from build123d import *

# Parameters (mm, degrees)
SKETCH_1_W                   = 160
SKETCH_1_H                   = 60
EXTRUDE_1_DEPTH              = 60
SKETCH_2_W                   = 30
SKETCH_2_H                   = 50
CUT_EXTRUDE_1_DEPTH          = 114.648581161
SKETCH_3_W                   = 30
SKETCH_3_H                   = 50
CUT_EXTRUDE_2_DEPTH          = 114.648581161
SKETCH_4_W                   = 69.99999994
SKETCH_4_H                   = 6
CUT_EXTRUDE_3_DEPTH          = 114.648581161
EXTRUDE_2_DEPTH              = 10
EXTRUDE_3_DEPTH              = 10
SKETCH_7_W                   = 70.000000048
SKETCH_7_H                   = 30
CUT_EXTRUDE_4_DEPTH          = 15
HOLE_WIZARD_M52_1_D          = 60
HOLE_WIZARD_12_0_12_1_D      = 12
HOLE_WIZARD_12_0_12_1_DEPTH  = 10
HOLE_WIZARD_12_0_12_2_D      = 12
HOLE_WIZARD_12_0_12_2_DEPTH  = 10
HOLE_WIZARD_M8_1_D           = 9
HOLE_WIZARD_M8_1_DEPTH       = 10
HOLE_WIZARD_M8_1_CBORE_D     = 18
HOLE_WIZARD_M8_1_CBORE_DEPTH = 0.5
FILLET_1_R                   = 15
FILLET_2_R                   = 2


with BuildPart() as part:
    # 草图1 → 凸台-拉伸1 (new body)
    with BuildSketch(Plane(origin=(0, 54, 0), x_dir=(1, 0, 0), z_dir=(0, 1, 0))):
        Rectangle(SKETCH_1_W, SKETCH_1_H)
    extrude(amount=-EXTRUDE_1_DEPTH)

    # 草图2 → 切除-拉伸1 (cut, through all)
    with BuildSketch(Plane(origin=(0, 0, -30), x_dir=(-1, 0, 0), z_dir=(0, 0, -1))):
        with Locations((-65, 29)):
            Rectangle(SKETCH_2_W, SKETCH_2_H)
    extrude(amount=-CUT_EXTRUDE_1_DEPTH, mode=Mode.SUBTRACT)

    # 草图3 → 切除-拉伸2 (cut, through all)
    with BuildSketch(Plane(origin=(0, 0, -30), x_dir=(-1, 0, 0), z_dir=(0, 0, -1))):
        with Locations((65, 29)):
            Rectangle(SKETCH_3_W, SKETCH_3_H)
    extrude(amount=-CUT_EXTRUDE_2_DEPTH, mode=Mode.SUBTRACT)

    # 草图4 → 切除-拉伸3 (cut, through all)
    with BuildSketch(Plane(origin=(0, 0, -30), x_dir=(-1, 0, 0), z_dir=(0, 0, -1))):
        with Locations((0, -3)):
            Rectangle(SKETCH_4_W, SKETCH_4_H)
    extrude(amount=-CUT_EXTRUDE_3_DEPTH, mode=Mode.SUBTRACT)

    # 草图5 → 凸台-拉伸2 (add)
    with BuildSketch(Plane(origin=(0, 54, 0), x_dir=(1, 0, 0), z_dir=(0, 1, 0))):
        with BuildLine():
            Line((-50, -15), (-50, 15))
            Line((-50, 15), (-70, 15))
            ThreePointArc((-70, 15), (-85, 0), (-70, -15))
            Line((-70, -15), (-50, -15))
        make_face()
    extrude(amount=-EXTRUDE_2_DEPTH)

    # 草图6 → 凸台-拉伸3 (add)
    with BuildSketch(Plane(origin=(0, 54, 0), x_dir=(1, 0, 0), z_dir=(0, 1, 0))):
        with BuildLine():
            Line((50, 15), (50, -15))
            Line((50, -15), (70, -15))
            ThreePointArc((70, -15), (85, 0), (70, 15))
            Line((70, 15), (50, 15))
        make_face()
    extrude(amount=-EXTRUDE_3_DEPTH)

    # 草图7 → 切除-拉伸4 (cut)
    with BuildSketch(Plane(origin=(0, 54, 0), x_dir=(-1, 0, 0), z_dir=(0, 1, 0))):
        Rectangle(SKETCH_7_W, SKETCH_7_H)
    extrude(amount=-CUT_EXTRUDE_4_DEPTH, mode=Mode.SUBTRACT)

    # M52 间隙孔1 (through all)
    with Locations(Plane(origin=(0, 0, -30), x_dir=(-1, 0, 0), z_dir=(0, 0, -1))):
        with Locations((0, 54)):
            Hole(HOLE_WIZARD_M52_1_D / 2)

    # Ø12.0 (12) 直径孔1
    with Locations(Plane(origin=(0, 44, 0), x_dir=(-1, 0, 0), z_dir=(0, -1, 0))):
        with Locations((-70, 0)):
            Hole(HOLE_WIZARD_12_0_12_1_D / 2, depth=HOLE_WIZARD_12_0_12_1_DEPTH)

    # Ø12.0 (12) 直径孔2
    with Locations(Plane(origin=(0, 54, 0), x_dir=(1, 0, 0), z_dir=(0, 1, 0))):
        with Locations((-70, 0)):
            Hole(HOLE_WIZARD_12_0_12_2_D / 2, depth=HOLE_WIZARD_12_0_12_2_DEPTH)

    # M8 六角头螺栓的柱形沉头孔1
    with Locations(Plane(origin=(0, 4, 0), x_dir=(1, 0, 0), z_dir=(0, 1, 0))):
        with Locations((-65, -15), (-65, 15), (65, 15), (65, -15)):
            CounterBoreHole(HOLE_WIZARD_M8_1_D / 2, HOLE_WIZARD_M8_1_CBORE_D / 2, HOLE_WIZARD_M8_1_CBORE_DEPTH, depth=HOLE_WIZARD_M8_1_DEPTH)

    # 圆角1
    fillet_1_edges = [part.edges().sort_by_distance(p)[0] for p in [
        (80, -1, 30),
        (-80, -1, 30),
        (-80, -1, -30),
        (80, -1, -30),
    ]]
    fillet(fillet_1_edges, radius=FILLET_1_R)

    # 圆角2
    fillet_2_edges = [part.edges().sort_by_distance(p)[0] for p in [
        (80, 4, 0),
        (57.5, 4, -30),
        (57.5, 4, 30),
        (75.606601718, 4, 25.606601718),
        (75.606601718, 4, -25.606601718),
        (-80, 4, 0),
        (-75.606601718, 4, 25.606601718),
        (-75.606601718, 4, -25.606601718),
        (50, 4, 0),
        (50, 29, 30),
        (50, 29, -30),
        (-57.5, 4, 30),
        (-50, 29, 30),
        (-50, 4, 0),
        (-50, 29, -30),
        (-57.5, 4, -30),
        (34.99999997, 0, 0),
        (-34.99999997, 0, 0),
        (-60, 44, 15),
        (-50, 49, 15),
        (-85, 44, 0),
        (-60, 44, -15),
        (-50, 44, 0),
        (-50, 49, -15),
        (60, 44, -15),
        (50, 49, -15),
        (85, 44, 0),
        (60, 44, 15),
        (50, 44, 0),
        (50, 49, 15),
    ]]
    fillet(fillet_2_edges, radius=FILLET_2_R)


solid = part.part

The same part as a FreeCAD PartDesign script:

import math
import FreeCAD as App
import Part
import Sketcher
Q = App.Units.Quantity


def edges_at(feature, points):
    """Names of the edges that pass closest to the given points."""
    edges = feature.Shape.Edges
    near = lambda p: min(range(len(edges)), key=lambda i: edges[i].distToShape(Part.Vertex(*p))[0])
    return sorted({f"Edge{near(p) + 1}" for p in points})

doc = App.newDocument("Part")
params = doc.addObject("Spreadsheet::Sheet", "Params")
for row, (alias, value) in enumerate([
    ("sketch1_width", "160 mm"),
    ("sketch1_height", "60 mm"),
    ("pad1_length", "60 mm"),
    ("sketch2_width", "30 mm"),
    ("sketch2_height", "50 mm"),
    ("sketch3_width", "30 mm"),
    ("sketch3_height", "50 mm"),
    ("sketch4_width", "70 mm"),
    ("sketch4_height", "6 mm"),
    ("sketch5_radius", "15 mm"),
    ("sketch5_width", "20 mm"),
    ("pad2_length", "10 mm"),
    ("sketch6_radius", "15 mm"),
    ("sketch6_width", "20 mm"),
    ("pad3_length", "10 mm"),
    ("sketch7_width", "70 mm"),
    ("sketch7_height", "30 mm"),
    ("pocket4_length", "15 mm"),
    ("sketch8_diameter", "60 mm"),
    ("hole_diameter", "60 mm"),
    ("sketch9_diameter", "12 mm"),
    ("hole2_diameter", "12 mm"),
    ("hole2_depth", "10 mm"),
    ("sketch10_diameter", "12 mm"),
    ("hole3_diameter", "12 mm"),
    ("hole3_depth", "10 mm"),
    ("sketch11_diameter", "9 mm"),
    ("hole4_diameter", "9 mm"),
    ("hole4_depth", "10 mm"),
    ("hole4_cbore_diameter", "18 mm"),
    ("hole4_cbore_depth", "0.5 mm"),
    ("fillet_radius", "15 mm"),
    ("fillet2_radius", "2 mm"),
], start=1):
    params.set(f"A{row}", alias)
    params.set(f"B{row}", "=" + value)
    params.setAlias(f"B{row}", alias)

body = doc.addObject("PartDesign::Body", "Body")

sketch1 = body.newObject("Sketcher::SketchObject", "Sketch")
sketch1.AttachmentSupport = (doc.getObject("XZ_Plane"), [""])
sketch1.MapMode = "FlatFace"
sketch1.AttachmentOffset = App.Placement(App.Vector(0, 0, -54), App.Rotation())
sketch1.addGeometry(Part.LineSegment(App.Vector(-80, -30, 0), App.Vector(-80, 30, 0)), False)
sketch1.addGeometry(Part.LineSegment(App.Vector(-80, 30, 0), App.Vector(80, 30, 0)), False)
sketch1.addGeometry(Part.LineSegment(App.Vector(80, 30, 0), App.Vector(80, -30, 0)), False)
sketch1.addGeometry(Part.LineSegment(App.Vector(80, -30, 0), App.Vector(-80, -30, 0)), False)
sketch1.addConstraint(Sketcher.Constraint("Coincident", 0, 2, 1, 1))
sketch1.addConstraint(Sketcher.Constraint("Coincident", 1, 2, 2, 1))
sketch1.addConstraint(Sketcher.Constraint("Coincident", 2, 2, 3, 1))
sketch1.addConstraint(Sketcher.Constraint("Coincident", 3, 2, 0, 1))
sketch1.addConstraint(Sketcher.Constraint("Vertical", 0))
sketch1.addConstraint(Sketcher.Constraint("Horizontal", 1))
sketch1.addConstraint(Sketcher.Constraint("Vertical", 2))
sketch1.addConstraint(Sketcher.Constraint("Horizontal", 3))
sketch1.addConstraint(Sketcher.Constraint("Symmetric", 0, 2, 2, 2, -1, 1))
sketch1.addConstraint(Sketcher.Constraint("DistanceX", 1, 1, 1, 2, Q("160 mm")))
sketch1.addConstraint(Sketcher.Constraint("DistanceY", 0, 1, 0, 2, Q("60 mm")))
sketch1.setExpression("Constraints[9]", "Params.sketch1_width")
sketch1.setExpression("Constraints[10]", "Params.sketch1_height")
pad1 = body.newObject("PartDesign::Pad", "Pad")
pad1.Profile = sketch1
pad1.setExpression("Length", "Params.pad1_length")

sketch2 = body.newObject("Sketcher::SketchObject", "Sketch001")
sketch2.AttachmentSupport = (doc.getObject("XY_Plane"), [""])
sketch2.MapMode = "FlatFace"
sketch2.AttachmentOffset = App.Placement(App.Vector(0, 0, -30), App.Rotation())
sketch2.addGeometry(Part.LineSegment(App.Vector(80, 54, 0), App.Vector(80, 4, 0)), False)
sketch2.addGeometry(Part.LineSegment(App.Vector(80, 4, 0), App.Vector(50, 4, 0)), False)
sketch2.addGeometry(Part.LineSegment(App.Vector(50, 4, 0), App.Vector(50, 54, 0)), False)
sketch2.addGeometry(Part.LineSegment(App.Vector(50, 54, 0), App.Vector(80, 54, 0)), False)
sketch2.addConstraint(Sketcher.Constraint("Coincident", 0, 2, 1, 1))
sketch2.addConstraint(Sketcher.Constraint("Coincident", 1, 2, 2, 1))
sketch2.addConstraint(Sketcher.Constraint("Coincident", 2, 2, 3, 1))
sketch2.addConstraint(Sketcher.Constraint("Coincident", 3, 2, 0, 1))
sketch2.addConstraint(Sketcher.Constraint("Vertical", 0))
sketch2.addConstraint(Sketcher.Constraint("Horizontal", 1))
sketch2.addConstraint(Sketcher.Constraint("Vertical", 2))
sketch2.addConstraint(Sketcher.Constraint("Horizontal", 3))
sketch2.addConstraint(Sketcher.Constraint("DistanceX", 1, 2, 1, 1, Q("30 mm")))
sketch2.addConstraint(Sketcher.Constraint("DistanceY", 0, 2, 0, 1, Q("50 mm")))
sketch2.addConstraint(Sketcher.Constraint("DistanceX", -1, 1, 0, 2, Q("80 mm")))
sketch2.addConstraint(Sketcher.Constraint("DistanceY", -1, 1, 0, 2, Q("4 mm")))
sketch2.setExpression("Constraints[8]", "Params.sketch2_width")
sketch2.setExpression("Constraints[9]", "Params.sketch2_height")
pocket1 = body.newObject("PartDesign::Pocket", "Pocket")
pocket1.Profile = sketch2
pocket1.Type = "ThroughAll"
pocket1.Reversed = True

sketch3 = body.newObject("Sketcher::SketchObject", "Sketch002")
sketch3.AttachmentSupport = (doc.getObject("XY_Plane"), [""])
sketch3.MapMode = "FlatFace"
sketch3.AttachmentOffset = App.Placement(App.Vector(0, 0, -30), App.Rotation())
sketch3.addGeometry(Part.LineSegment(App.Vector(-50, 54, 0), App.Vector(-50, 4, 0)), False)
sketch3.addGeometry(Part.LineSegment(App.Vector(-50, 4, 0), App.Vector(-80, 4, 0)), False)
sketch3.addGeometry(Part.LineSegment(App.Vector(-80, 4, 0), App.Vector(-80, 54, 0)), False)
sketch3.addGeometry(Part.LineSegment(App.Vector(-80, 54, 0), App.Vector(-50, 54, 0)), False)
sketch3.addConstraint(Sketcher.Constraint("Coincident", 0, 2, 1, 1))
sketch3.addConstraint(Sketcher.Constraint("Coincident", 1, 2, 2, 1))
sketch3.addConstraint(Sketcher.Constraint("Coincident", 2, 2, 3, 1))
sketch3.addConstraint(Sketcher.Constraint("Coincident", 3, 2, 0, 1))
sketch3.addConstraint(Sketcher.Constraint("Vertical", 0))
sketch3.addConstraint(Sketcher.Constraint("Horizontal", 1))
sketch3.addConstraint(Sketcher.Constraint("Vertical", 2))
sketch3.addConstraint(Sketcher.Constraint("Horizontal", 3))
sketch3.addConstraint(Sketcher.Constraint("DistanceX", 1, 2, 1, 1, Q("30 mm")))
sketch3.addConstraint(Sketcher.Constraint("DistanceY", 0, 2, 0, 1, Q("50 mm")))
sketch3.addConstraint(Sketcher.Constraint("DistanceX", 0, 2, -1, 1, Q("50 mm")))
sketch3.addConstraint(Sketcher.Constraint("DistanceY", -1, 1, 0, 2, Q("4 mm")))
sketch3.setExpression("Constraints[8]", "Params.sketch3_width")
sketch3.setExpression("Constraints[9]", "Params.sketch3_height")
pocket2 = body.newObject("PartDesign::Pocket", "Pocket001")
pocket2.Profile = sketch3
pocket2.Type = "ThroughAll"
pocket2.Reversed = True

sketch4 = body.newObject("Sketcher::SketchObject", "Sketch003")
sketch4.AttachmentSupport = (doc.getObject("XY_Plane"), [""])
sketch4.MapMode = "FlatFace"
sketch4.AttachmentOffset = App.Placement(App.Vector(0, 0, -30), App.Rotation())
sketch4.addGeometry(Part.LineSegment(App.Vector(35, 0, 0), App.Vector(35, -6, 0)), False)
sketch4.addGeometry(Part.LineSegment(App.Vector(35, -6, 0), App.Vector(-35, -6, 0)), False)
sketch4.addGeometry(Part.LineSegment(App.Vector(-35, -6, 0), App.Vector(-35, 0, 0)), False)
sketch4.addGeometry(Part.LineSegment(App.Vector(-35, 0, 0), App.Vector(35, 0, 0)), False)
sketch4.addConstraint(Sketcher.Constraint("Coincident", 0, 2, 1, 1))
sketch4.addConstraint(Sketcher.Constraint("Coincident", 1, 2, 2, 1))
sketch4.addConstraint(Sketcher.Constraint("Coincident", 2, 2, 3, 1))
sketch4.addConstraint(Sketcher.Constraint("Coincident", 3, 2, 0, 1))
sketch4.addConstraint(Sketcher.Constraint("Vertical", 0))
sketch4.addConstraint(Sketcher.Constraint("Horizontal", 1))
sketch4.addConstraint(Sketcher.Constraint("Vertical", 2))
sketch4.addConstraint(Sketcher.Constraint("Horizontal", 3))
sketch4.addConstraint(Sketcher.Constraint("Symmetric", 2, 2, 3, 2, -1, 1))
sketch4.addConstraint(Sketcher.Constraint("DistanceX", 1, 2, 1, 1, Q("70 mm")))
sketch4.addConstraint(Sketcher.Constraint("DistanceY", 0, 2, 0, 1, Q("6 mm")))
sketch4.setExpression("Constraints[9]", "Params.sketch4_width")
sketch4.setExpression("Constraints[10]", "Params.sketch4_height")
pocket3 = body.newObject("PartDesign::Pocket", "Pocket002")
pocket3.Profile = sketch4
pocket3.Type = "ThroughAll"
pocket3.Reversed = True

sketch5 = body.newObject("Sketcher::SketchObject", "Sketch004")
sketch5.AttachmentSupport = (doc.getObject("XZ_Plane"), [""])
sketch5.MapMode = "FlatFace"
sketch5.AttachmentOffset = App.Placement(App.Vector(0, 0, -54), App.Rotation())
sketch5.addGeometry(Part.LineSegment(App.Vector(-50, 15, 0), App.Vector(-50, -15, 0)), False)
sketch5.addGeometry(Part.LineSegment(App.Vector(-50, -15, 0), App.Vector(-70, -15, 0)), False)
sketch5.addGeometry(Part.ArcOfCircle(Part.Circle(App.Vector(-70, 0, 0), App.Vector(0, 0, 1), 15), math.radians(90), math.radians(270)), False)
sketch5.addGeometry(Part.LineSegment(App.Vector(-70, 15, 0), App.Vector(-50, 15, 0)), False)
sketch5.addConstraint(Sketcher.Constraint("Coincident", 0, 2, 1, 1))
sketch5.addConstraint(Sketcher.Constraint("Tangent", 1, 2, 2, 2))
sketch5.addConstraint(Sketcher.Constraint("Tangent", 2, 1, 3, 1))
sketch5.addConstraint(Sketcher.Constraint("Coincident", 3, 2, 0, 1))
sketch5.addConstraint(Sketcher.Constraint("Vertical", 0))
sketch5.addConstraint(Sketcher.Constraint("Horizontal", 1))
sketch5.addConstraint(Sketcher.Constraint("Horizontal", 3))
sketch5.addConstraint(Sketcher.Constraint("PointOnObject", 2, 3, -1))
sketch5.addConstraint(Sketcher.Constraint("Radius", 2, Q("15 mm")))
sketch5.addConstraint(Sketcher.Constraint("DistanceX", 1, 2, 1, 1, Q("20 mm")))
sketch5.addConstraint(Sketcher.Constraint("DistanceX", 2, 3, -1, 1, Q("70 mm")))
sketch5.setExpression("Constraints[8]", "Params.sketch5_radius")
sketch5.setExpression("Constraints[9]", "Params.sketch5_width")
pad2 = body.newObject("PartDesign::Pad", "Pad001")
pad2.Profile = sketch5
pad2.setExpression("Length", "Params.pad2_length")

sketch6 = body.newObject("Sketcher::SketchObject", "Sketch005")
sketch6.AttachmentSupport = (doc.getObject("XZ_Plane"), [""])
sketch6.MapMode = "FlatFace"
sketch6.AttachmentOffset = App.Placement(App.Vector(0, 0, -54), App.Rotation())
sketch6.addGeometry(Part.LineSegment(App.Vector(50, -15, 0), App.Vector(50, 15, 0)), False)
sketch6.addGeometry(Part.LineSegment(App.Vector(50, 15, 0), App.Vector(70, 15, 0)), False)
sketch6.addGeometry(Part.ArcOfCircle(Part.Circle(App.Vector(70, 0, 0), App.Vector(0, 0, 1), 15), math.radians(-90), math.radians(90)), False)
sketch6.addGeometry(Part.LineSegment(App.Vector(70, -15, 0), App.Vector(50, -15, 0)), False)
sketch6.addConstraint(Sketcher.Constraint("Coincident", 0, 2, 1, 1))
sketch6.addConstraint(Sketcher.Constraint("Tangent", 1, 2, 2, 2))
sketch6.addConstraint(Sketcher.Constraint("Tangent", 2, 1, 3, 1))
sketch6.addConstraint(Sketcher.Constraint("Coincident", 3, 2, 0, 1))
sketch6.addConstraint(Sketcher.Constraint("Vertical", 0))
sketch6.addConstraint(Sketcher.Constraint("Horizontal", 1))
sketch6.addConstraint(Sketcher.Constraint("Horizontal", 3))
sketch6.addConstraint(Sketcher.Constraint("PointOnObject", 2, 3, -1))
sketch6.addConstraint(Sketcher.Constraint("Radius", 2, Q("15 mm")))
sketch6.addConstraint(Sketcher.Constraint("DistanceX", 1, 1, 1, 2, Q("20 mm")))
sketch6.addConstraint(Sketcher.Constraint("DistanceX", -1, 1, 2, 3, Q("70 mm")))
sketch6.setExpression("Constraints[8]", "Params.sketch6_radius")
sketch6.setExpression("Constraints[9]", "Params.sketch6_width")
pad3 = body.newObject("PartDesign::Pad", "Pad002")
pad3.Profile = sketch6
pad3.setExpression("Length", "Params.pad3_length")

sketch7 = body.newObject("Sketcher::SketchObject", "Sketch006")
sketch7.AttachmentSupport = (doc.getObject("XZ_Plane"), [""])
sketch7.MapMode = "FlatFace"
sketch7.AttachmentOffset = App.Placement(App.Vector(0, 0, -54), App.Rotation())
sketch7.addGeometry(Part.LineSegment(App.Vector(35, 15, 0), App.Vector(35, -15, 0)), False)
sketch7.addGeometry(Part.LineSegment(App.Vector(35, -15, 0), App.Vector(-35, -15, 0)), False)
sketch7.addGeometry(Part.LineSegment(App.Vector(-35, -15, 0), App.Vector(-35, 15, 0)), False)
sketch7.addGeometry(Part.LineSegment(App.Vector(-35, 15, 0), App.Vector(35, 15, 0)), False)
sketch7.addConstraint(Sketcher.Constraint("Coincident", 0, 2, 1, 1))
sketch7.addConstraint(Sketcher.Constraint("Coincident", 1, 2, 2, 1))
sketch7.addConstraint(Sketcher.Constraint("Coincident", 2, 2, 3, 1))
sketch7.addConstraint(Sketcher.Constraint("Coincident", 3, 2, 0, 1))
sketch7.addConstraint(Sketcher.Constraint("Vertical", 0))
sketch7.addConstraint(Sketcher.Constraint("Horizontal", 1))
sketch7.addConstraint(Sketcher.Constraint("Vertical", 2))
sketch7.addConstraint(Sketcher.Constraint("Horizontal", 3))
sketch7.addConstraint(Sketcher.Constraint("Symmetric", 0, 2, 2, 2, -1, 1))
sketch7.addConstraint(Sketcher.Constraint("DistanceX", 1, 2, 1, 1, Q("70 mm")))
sketch7.addConstraint(Sketcher.Constraint("DistanceY", 0, 2, 0, 1, Q("30 mm")))
sketch7.setExpression("Constraints[9]", "Params.sketch7_width")
sketch7.setExpression("Constraints[10]", "Params.sketch7_height")
pocket4 = body.newObject("PartDesign::Pocket", "Pocket003")
pocket4.Profile = sketch7
pocket4.setExpression("Length", "Params.pocket4_length")
pocket4.Reversed = True

sketch8 = body.newObject("Sketcher::SketchObject", "Sketch007")
sketch8.AttachmentSupport = (doc.getObject("XY_Plane"), [""])
sketch8.MapMode = "FlatFace"
sketch8.AttachmentOffset = App.Placement(App.Vector(0, 0, -30), App.Rotation())
sketch8.addGeometry(Part.Circle(App.Vector(0, 54, 0), App.Vector(0, 0, 1), 30), False)
sketch8.addConstraint(Sketcher.Constraint("PointOnObject", 0, 3, -2))
sketch8.addConstraint(Sketcher.Constraint("Diameter", 0, Q("60 mm")))
sketch8.addConstraint(Sketcher.Constraint("DistanceY", -1, 1, 0, 3, Q("54 mm")))
sketch8.setExpression("Constraints[1]", "Params.sketch8_diameter")
doc.recompute()
hole = body.newObject("PartDesign::Hole", "Hole")
hole.Profile = sketch8
hole.ThreadType = "None"
hole.setExpression("Diameter", "Params.hole_diameter")
hole.DepthType = "ThroughAll"
hole.Reversed = True

sketch9 = body.newObject("Sketcher::SketchObject", "Sketch008")
sketch9.AttachmentSupport = (doc.getObject("XZ_Plane"), [""])
sketch9.MapMode = "FlatFace"
sketch9.AttachmentOffset = App.Placement(App.Vector(0, 0, -44), App.Rotation())
sketch9.addGeometry(Part.Circle(App.Vector(70, 0, 0), App.Vector(0, 0, 1), 6), False)
sketch9.addConstraint(Sketcher.Constraint("PointOnObject", 0, 3, -1))
sketch9.addConstraint(Sketcher.Constraint("Diameter", 0, Q("12 mm")))
sketch9.addConstraint(Sketcher.Constraint("DistanceX", -1, 1, 0, 3, Q("70 mm")))
sketch9.setExpression("Constraints[1]", "Params.sketch9_diameter")
doc.recompute()
hole2 = body.newObject("PartDesign::Hole", "Hole001")
hole2.Profile = sketch9
hole2.ThreadType = "None"
hole2.setExpression("Diameter", "Params.hole2_diameter")
hole2.DepthType = "Dimension"
hole2.setExpression("Depth", "Params.hole2_depth")
hole2.DrillPoint = "Flat"

sketch10 = body.newObject("Sketcher::SketchObject", "Sketch009")
sketch10.AttachmentSupport = (doc.getObject("XZ_Plane"), [""])
sketch10.MapMode = "FlatFace"
sketch10.AttachmentOffset = App.Placement(App.Vector(0, 0, -54), App.Rotation())
sketch10.addGeometry(Part.Circle(App.Vector(-70, 0, 0), App.Vector(0, 0, 1), 6), False)
sketch10.addConstraint(Sketcher.Constraint("PointOnObject", 0, 3, -1))
sketch10.addConstraint(Sketcher.Constraint("Diameter", 0, Q("12 mm")))
sketch10.addConstraint(Sketcher.Constraint("DistanceX", 0, 3, -1, 1, Q("70 mm")))
sketch10.setExpression("Constraints[1]", "Params.sketch10_diameter")
doc.recompute()
hole3 = body.newObject("PartDesign::Hole", "Hole002")
hole3.Profile = sketch10
hole3.ThreadType = "None"
hole3.setExpression("Diameter", "Params.hole3_diameter")
hole3.DepthType = "Dimension"
hole3.setExpression("Depth", "Params.hole3_depth")
hole3.DrillPoint = "Flat"
hole3.Reversed = True

sketch11 = body.newObject("Sketcher::SketchObject", "Sketch010")
sketch11.AttachmentSupport = (doc.getObject("XZ_Plane"), [""])
sketch11.MapMode = "FlatFace"
sketch11.AttachmentOffset = App.Placement(App.Vector(0, 0, -4), App.Rotation())
sketch11.addGeometry(Part.Circle(App.Vector(-65, 15, 0), App.Vector(0, 0, 1), 4.5), False)
sketch11.addGeometry(Part.Circle(App.Vector(-65, -15, 0), App.Vector(0, 0, 1), 4.5), False)
sketch11.addGeometry(Part.Circle(App.Vector(65, -15, 0), App.Vector(0, 0, 1), 4.5), False)
sketch11.addGeometry(Part.Circle(App.Vector(65, 15, 0), App.Vector(0, 0, 1), 4.5), False)
sketch11.addConstraint(Sketcher.Constraint("Equal", 0, 1))
sketch11.addConstraint(Sketcher.Constraint("Equal", 1, 2))
sketch11.addConstraint(Sketcher.Constraint("Equal", 2, 3))
sketch11.addConstraint(Sketcher.Constraint("Symmetric", 0, 3, 2, 3, -1, 1))
sketch11.addConstraint(Sketcher.Constraint("Symmetric", 1, 3, 3, 3, -1, 1))
sketch11.addConstraint(Sketcher.Constraint("Symmetric", 1, 3, 2, 3, -2))
sketch11.addConstraint(Sketcher.Constraint("Diameter", 0, Q("9 mm")))
sketch11.addConstraint(Sketcher.Constraint("DistanceX", 0, 3, -1, 1, Q("65 mm")))
sketch11.addConstraint(Sketcher.Constraint("DistanceY", -1, 1, 0, 3, Q("15 mm")))
sketch11.setExpression("Constraints[6]", "Params.sketch11_diameter")
doc.recompute()
hole4 = body.newObject("PartDesign::Hole", "Hole003")
hole4.Profile = sketch11
hole4.ThreadType = "None"
hole4.setExpression("Diameter", "Params.hole4_diameter")
hole4.DepthType = "Dimension"
hole4.setExpression("Depth", "Params.hole4_depth")
hole4.DrillPoint = "Flat"
hole4.HoleCutType = "Counterbore"
hole4.setExpression("HoleCutDiameter", "Params.hole4_cbore_diameter")
hole4.setExpression("HoleCutDepth", "Params.hole4_cbore_depth")
hole4.Reversed = True
doc.recompute()

fillet = body.newObject("PartDesign::Fillet", "Fillet")
fillet.Base = (hole4, edges_at(hole4, [
    (80, -1, 30),
    (-80, -1, 30),
    (-80, -1, -30),
    (80, -1, -30),
]))
fillet.setExpression("Radius", "Params.fillet_radius")
doc.recompute()

fillet2 = body.newObject("PartDesign::Fillet", "Fillet001")
fillet2.Base = (fillet, edges_at(fillet, [
    (80, 4, 0),
    (57.5, 4, -30),
    (57.5, 4, 30),
    (75.607, 4, 25.607),
    (75.607, 4, -25.607),
    (-80, 4, 0),
    (-75.607, 4, 25.607),
    (-75.607, 4, -25.607),
    (50, 4, 0),
    (50, 29, 30),
    (50, 29, -30),
    (-57.5, 4, 30),
    (-50, 29, 30),
    (-50, 4, 0),
    (-50, 29, -30),
    (-57.5, 4, -30),
    (35, 0, 0),
    (-35, 0, 0),
    (-60, 44, 15),
    (-50, 49, 15),
    (-85, 44, 0),
    (-60, 44, -15),
    (-50, 44, 0),
    (-50, 49, -15),
    (60, 44, -15),
    (50, 49, -15),
    (85, 44, 0),
    (60, 44, 15),
    (50, 44, 0),
    (50, 49, 15),
]))
fillet2.setExpression("Radius", "Params.fillet2_radius")

doc.recompute()
